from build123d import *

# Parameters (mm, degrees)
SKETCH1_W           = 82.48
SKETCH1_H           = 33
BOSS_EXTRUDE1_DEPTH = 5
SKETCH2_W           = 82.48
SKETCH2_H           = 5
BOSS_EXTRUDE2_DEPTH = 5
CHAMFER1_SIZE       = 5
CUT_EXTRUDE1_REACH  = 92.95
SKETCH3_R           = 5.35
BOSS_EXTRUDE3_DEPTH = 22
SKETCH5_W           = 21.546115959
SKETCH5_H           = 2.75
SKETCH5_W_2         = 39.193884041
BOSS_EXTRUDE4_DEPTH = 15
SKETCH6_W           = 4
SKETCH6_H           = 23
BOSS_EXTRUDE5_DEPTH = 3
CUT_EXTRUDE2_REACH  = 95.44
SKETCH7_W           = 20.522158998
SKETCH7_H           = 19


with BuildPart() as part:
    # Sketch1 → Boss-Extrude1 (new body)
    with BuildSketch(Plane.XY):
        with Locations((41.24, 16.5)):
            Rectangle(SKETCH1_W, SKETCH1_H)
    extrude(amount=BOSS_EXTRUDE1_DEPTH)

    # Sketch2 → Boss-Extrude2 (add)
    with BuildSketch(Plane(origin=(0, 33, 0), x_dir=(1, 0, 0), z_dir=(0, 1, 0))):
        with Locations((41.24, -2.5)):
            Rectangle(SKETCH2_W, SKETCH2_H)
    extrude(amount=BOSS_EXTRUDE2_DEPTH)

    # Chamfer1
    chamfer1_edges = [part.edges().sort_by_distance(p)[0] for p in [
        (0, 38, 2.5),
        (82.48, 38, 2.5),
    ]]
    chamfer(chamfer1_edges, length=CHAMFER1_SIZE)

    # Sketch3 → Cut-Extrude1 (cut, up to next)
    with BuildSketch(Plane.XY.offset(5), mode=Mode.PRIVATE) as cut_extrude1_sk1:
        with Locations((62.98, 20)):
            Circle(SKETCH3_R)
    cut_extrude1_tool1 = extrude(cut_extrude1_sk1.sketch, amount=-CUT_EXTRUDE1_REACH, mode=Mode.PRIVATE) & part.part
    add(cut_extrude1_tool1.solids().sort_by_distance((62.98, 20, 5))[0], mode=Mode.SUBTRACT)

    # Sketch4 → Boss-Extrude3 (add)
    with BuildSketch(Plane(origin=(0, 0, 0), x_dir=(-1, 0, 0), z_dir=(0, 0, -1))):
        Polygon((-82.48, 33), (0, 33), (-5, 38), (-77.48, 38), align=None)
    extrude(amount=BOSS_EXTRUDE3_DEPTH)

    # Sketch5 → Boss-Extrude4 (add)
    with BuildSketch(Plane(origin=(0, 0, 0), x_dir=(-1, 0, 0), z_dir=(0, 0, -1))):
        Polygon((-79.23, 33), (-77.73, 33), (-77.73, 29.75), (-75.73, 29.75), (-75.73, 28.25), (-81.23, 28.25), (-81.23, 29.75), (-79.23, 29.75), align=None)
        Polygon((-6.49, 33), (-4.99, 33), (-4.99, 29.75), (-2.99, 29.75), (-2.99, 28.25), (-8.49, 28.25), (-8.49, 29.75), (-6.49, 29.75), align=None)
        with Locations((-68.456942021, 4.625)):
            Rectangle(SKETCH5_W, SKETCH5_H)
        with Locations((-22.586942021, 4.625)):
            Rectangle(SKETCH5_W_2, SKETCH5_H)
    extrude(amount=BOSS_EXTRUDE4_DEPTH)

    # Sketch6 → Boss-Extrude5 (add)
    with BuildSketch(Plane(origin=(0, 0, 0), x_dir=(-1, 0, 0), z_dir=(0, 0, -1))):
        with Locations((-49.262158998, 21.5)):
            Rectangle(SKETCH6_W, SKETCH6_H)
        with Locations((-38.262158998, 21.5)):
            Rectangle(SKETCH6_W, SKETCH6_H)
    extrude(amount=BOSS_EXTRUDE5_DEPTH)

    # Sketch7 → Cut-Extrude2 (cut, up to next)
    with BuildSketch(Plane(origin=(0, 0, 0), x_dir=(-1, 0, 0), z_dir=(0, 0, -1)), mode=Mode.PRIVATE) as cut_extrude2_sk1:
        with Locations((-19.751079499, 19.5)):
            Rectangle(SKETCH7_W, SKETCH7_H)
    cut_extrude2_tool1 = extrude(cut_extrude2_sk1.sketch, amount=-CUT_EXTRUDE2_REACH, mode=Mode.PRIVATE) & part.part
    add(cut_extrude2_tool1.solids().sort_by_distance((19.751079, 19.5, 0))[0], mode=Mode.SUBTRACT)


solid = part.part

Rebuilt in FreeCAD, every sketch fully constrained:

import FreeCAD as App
import Part
import Sketcher

V = App.Vector
Q = App.Units.Quantity


def edges_at(feature, points):
    """Names of the edges that pass closest to the given points."""
    edges = feature.Shape.Edges
    near = lambda p: min(range(len(edges)), key=lambda i: edges[i].distToShape(Part.Vertex(*p))[0])
    return sorted({f"Edge{near(p) + 1}" for p in points})


def add_polygon(sketch, points):
    """Adds a closed chain of lines whose ends are joined by coincident constraints."""
    first, n = sketch.GeometryCount, len(points)
    for a, b in zip(points, points[1:] + points[:1]):
        sketch.addGeometry(Part.LineSegment(App.Vector(*a, 0), App.Vector(*b, 0)), False)
    for i in range(n):
        sketch.addConstraint(Sketcher.Constraint("Coincident", first + i, 2, first + (i + 1) % n, 1))

doc = App.newDocument("Part")
body = doc.addObject("PartDesign::Body", "Body")

sketch1 = doc.addObject("Sketcher::SketchObject", "Sketch")
body.addObject(sketch1)
sketch1.AttachmentSupport = (doc.XY_Plane, [""])
sketch1.MapMode = "FlatFace"
add_polygon(sketch1, [(0, 33), (0, 0), (82, 0), (82, 33)])
sketch1.addConstraint([
    Sketcher.Constraint("Vertical", 0),
    Sketcher.Constraint("Horizontal", 1),
    Sketcher.Constraint("Vertical", 2),
    Sketcher.Constraint("Horizontal", 3),
    Sketcher.Constraint("Coincident", 0, 2, -1, 1),
    Sketcher.Constraint("DistanceY", 0, 2, 0, 1, Q("33 mm")),
    Sketcher.Constraint("DistanceX", 1, 1, 1, 2, Q("82.48 mm")),
])
pad1 = doc.addObject("PartDesign::Pad", "Pad")
body.addObject(pad1)
pad1.Profile = sketch1
pad1.Length = 5

sketch2 = doc.addObject("Sketcher::SketchObject", "Sketch001")
body.addObject(sketch2)
sketch2.AttachmentSupport = (doc.XZ_Plane, [""])
sketch2.MapMode = "FlatFace"
sketch2.AttachmentOffset = App.Placement(V(0, 0, -33), App.Rotation())
add_polygon(sketch2, [(0, 0), (0, 5), (82, 5), (82, 0)])
sketch2.addConstraint([
    Sketcher.Constraint("Vertical", 0),
    Sketcher.Constraint("Horizontal", 1),
    Sketcher.Constraint("Vertical", 2),
    Sketcher.Constraint("Horizontal", 3),
    Sketcher.Constraint("Coincident", 3, 2, -1, 1),
    Sketcher.Constraint("DistanceY", 0, 1, 0, 2, Q("5 mm")),
    Sketcher.Constraint("DistanceX", 1, 1, 1, 2, Q("82.48 mm")),
])
pad2 = doc.addObject("PartDesign::Pad", "Pad001")
body.addObject(pad2)
pad2.Profile = sketch2
pad2.Length = 5
pad2.Reversed = True
doc.recompute()

chamfer = doc.addObject("PartDesign::Chamfer", "Chamfer")
body.addObject(chamfer)
chamfer.Base = (pad2, edges_at(pad2, [(0, 38, 2.5), (82.48, 38, 2.5)]))
chamfer.Size = 5

sketch3 = doc.addObject("Sketcher::SketchObject", "Sketch002")
body.addObject(sketch3)
sketch3.AttachmentSupport = (doc.XY_Plane, [""])
sketch3.MapMode = "FlatFace"
sketch3.AttachmentOffset = App.Placement(V(0, 0, 5), App.Rotation())
sketch3.addGeometry(Part.Circle(V(63, 20, 0), V(0, 0, 1), 5), False)
sketch3.addConstraint([
    Sketcher.Constraint("Diameter", 0, Q("10.7 mm")),
    Sketcher.Constraint("DistanceY", -1, 1, 0, 3, Q("20 mm")),
    Sketcher.Constraint("DistanceX", -1, 1, 0, 3, Q("62.98 mm")),
])
pocket1 = doc.addObject("PartDesign::Pocket", "Pocket")
body.addObject(pocket1)
pocket1.Profile = sketch3
pocket1.Type = "UpToFirst"

sketch4 = doc.addObject("Sketcher::SketchObject", "Sketch003")
body.addObject(sketch4)
sketch4.AttachmentSupport = (doc.XY_Plane, [""])
sketch4.MapMode = "FlatFace"
add_polygon(sketch4, [(82, 33), (0, 33), (5, 38), (77, 38)])
sketch4.addConstraint([
    Sketcher.Constraint("Horizontal", 0),
    Sketcher.Constraint("Horizontal", 2),
    Sketcher.Constraint("PointOnObject", 0, 2, -2),
    Sketcher.Constraint("Perpendicular", 1, 3),
    Sketcher.Constraint("Equal", 1, 3),
    Sketcher.Constraint("DistanceY", -1, 1, 0, 2, Q("33 mm")),
    Sketcher.Constraint("DistanceX", -1, 1, 1, 2, Q("5 mm")),
    Sketcher.Constraint("DistanceX", 0, 2, 0, 1, Q("82.48 mm")),
])
pad3 = doc.addObject("PartDesign::Pad", "Pad002")
body.addObject(pad3)
pad3.Profile = sketch4
pad3.Length = 22
pad3.Reversed = True

sketch5 = doc.addObject("Sketcher::SketchObject", "Sketch004")
body.addObject(sketch5)
sketch5.AttachmentSupport = (doc.XY_Plane, [""])
sketch5.MapMode = "FlatFace"
add_polygon(sketch5, [(77.7, 33), (79.2, 33), (79.2, 29.8), (81.2, 29.8), (81.2, 28.2), (75.7, 28.2), (75.7, 29.8), (77.7, 29.8)])
add_polygon(sketch5, [(5, 33), (6.5, 33), (6.5, 29.8), (8.5, 29.8), (8.5, 28.2), (3, 28.2), (3, 29.8), (5, 29.8)])
add_polygon(sketch5, [(79.2, 6), (79.2, 3.2), (57.7, 3.2), (57.7, 6)])
add_polygon(sketch5, [(42.2, 6), (42.2, 3.2), (3, 3.2), (3, 6)])
sketch5.addConstraint([
    Sketcher.Constraint("Horizontal", 0),
    Sketcher.Constraint("Vertical", 1),
    Sketcher.Constraint("Horizontal", 2),
    Sketcher.Constraint("Vertical", 3),
    Sketcher.Constraint("Horizontal", 4),
    Sketcher.Constraint("Vertical", 5),
    Sketcher.Constraint("Horizontal", 6),
    Sketcher.Constraint("Vertical", 7),
    Sketcher.Constraint("Horizontal", 8),
    Sketcher.Constraint("Vertical", 9),
    Sketcher.Constraint("Horizontal", 10),
    Sketcher.Constraint("Vertical", 11),
    Sketcher.Constraint("Horizontal", 12),
    Sketcher.Constraint("Vertical", 13),
    Sketcher.Constraint("Horizontal", 14),
    Sketcher.Constraint("Vertical", 15),
    Sketcher.Constraint("Vertical", 16),
    Sketcher.Constraint("Horizontal", 17),
    Sketcher.Constraint("Vertical", 18),
    Sketcher.Constraint("Horizontal", 19),
    Sketcher.Constraint("Vertical", 20),
    Sketcher.Constraint("Horizontal", 21),
    Sketcher.Constraint("Vertical", 22),
    Sketcher.Constraint("Horizontal", 23),
    Sketcher.Constraint("Horizontal", 2, 2, 5, 2),
    Sketcher.Constraint("Horizontal", 7, 2, 8, 2),
    Sketcher.Constraint("Horizontal", 6, 2, 9, 2),
    Sketcher.Constraint("Horizontal", 4, 2, 11, 2),
    Sketcher.Constraint("Horizontal", 10, 2, 13, 2),
    Sketcher.Constraint("Horizontal", 17, 2, 20, 2),
    Sketcher.Constraint("Horizontal", 19, 2, 22, 2),
    Sketcher.Constraint("Vertical", 1, 2, 16, 2),
    Sketcher.Constraint("Vertical", 13, 2, 21, 2),
    Sketcher.Constraint("Equal", 2, 6),
    Sketcher.Constraint("Equal", 0, 8),
    Sketcher.Constraint("Equal", 6, 10),
    Sketcher.Constraint("Equal", 4, 12),
    Sketcher.Constraint("Equal", 8, 3),
    Sketcher.Constraint("DistanceX", 2, 1, 2, 2, Q("2 mm")),
    Sketcher.Constraint("DistanceX", 0, 1, 0, 2, Q("1.5 mm")),
    Sketcher.Constraint("DistanceY", -1, 1, 0, 2, Q("33 mm")),
    Sketcher.Constraint("DistanceY", -1, 1, 18, 2, Q("6 mm")),
    Sketcher.Constraint("DistanceY", 16, 2, 3, 2, Q("25 mm")),
    Sketcher.Constraint("DistanceY", 1, 2, 1, 1, Q("3.25 mm")),
    Sketcher.Constraint("DistanceX", 20, 2, 17, 2, Q("15.5 mm")),
    Sketcher.Constraint("DistanceX", -1, 1, 0, 2, Q("79.23 mm")),
    Sketcher.Constraint("DistanceX", -1, 1, 8, 2, Q("6.49 mm")),
    Sketcher.Constraint("DistanceX", 17, 2, 17, 1, Q("21.546116 mm")),
])
pad4 = doc.addObject("PartDesign::Pad", "Pad003")
body.addObject(pad4)
pad4.Profile = sketch5
pad4.Length = 15
pad4.Reversed = True

sketch6 = doc.addObject("Sketcher::SketchObject", "Sketch005")
body.addObject(sketch6)
sketch6.AttachmentSupport = (doc.XY_Plane, [""])
sketch6.MapMode = "FlatFace"
add_polygon(sketch6, [(51.3, 33), (51.3, 10), (47.3, 10), (47.3, 33)])
add_polygon(sketch6, [(40.3, 33), (40.3, 10), (36.3, 10), (36.3, 33)])
sketch6.addConstraint([
    Sketcher.Constraint("Vertical", 0),
    Sketcher.Constraint("Horizontal", 1),
    Sketcher.Constraint("Vertical", 2),
    Sketcher.Constraint("Horizontal", 3),
    Sketcher.Constraint("Vertical", 4),
    Sketcher.Constraint("Horizontal", 5),
    Sketcher.Constraint("Vertical", 6),
    Sketcher.Constraint("Horizontal", 7),
    Sketcher.Constraint("Horizontal", 1, 2, 4, 2),
    Sketcher.Constraint("Horizontal", 3, 2, 6, 2),
    Sketcher.Constraint("Equal", 3, 5),
    Sketcher.Constraint("DistanceX", 1, 2, 1, 1, Q("4 mm")),
    Sketcher.Constraint("DistanceY", 0, 2, 0, 1, Q("23 mm")),
    Sketcher.Constraint("DistanceY", -1, 1, 0, 2, Q("10 mm")),
    Sketcher.Constraint("DistanceX", 4, 2, 1, 2, Q("7 mm")),
    Sketcher.Constraint("DistanceX", -1, 1, 0, 2, Q("51.262159 mm")),
])
pad5 = doc.addObject("PartDesign::Pad", "Pad004")
body.addObject(pad5)
pad5.Profile = sketch6
pad5.Length = 3
pad5.Reversed = True

sketch7 = doc.addObject("Sketcher::SketchObject", "Sketch006")
body.addObject(sketch7)
sketch7.AttachmentSupport = (doc.XY_Plane, [""])
sketch7.MapMode = "FlatFace"
add_polygon(sketch7, [(30, 29), (30, 10), (9, 10), (9, 29)])
sketch7.addConstraint([
    Sketcher.Constraint("Vertical", 0),
    Sketcher.Constraint("Horizontal", 1),
    Sketcher.Constraint("Vertical", 2),
    Sketcher.Constraint("Horizontal", 3),
    Sketcher.Constraint("DistanceY", 0, 2, 0, 1, Q("19 mm")),
    Sketcher.Constraint("DistanceY", -1, 1, 0, 2, Q("10 mm")),
    Sketcher.Constraint("DistanceX", -1, 1, 1, 2, Q("9.49 mm")),
    Sketcher.Constraint("DistanceX", 1, 2, 1, 1, Q("20.522159 mm")),
])
pocket2 = doc.addObject("PartDesign::Pocket", "Pocket001")
body.addObject(pocket2)
pocket2.Profile = sketch7
pocket2.Type = "UpToFirst"
pocket2.Reversed = True

doc.recompute()
